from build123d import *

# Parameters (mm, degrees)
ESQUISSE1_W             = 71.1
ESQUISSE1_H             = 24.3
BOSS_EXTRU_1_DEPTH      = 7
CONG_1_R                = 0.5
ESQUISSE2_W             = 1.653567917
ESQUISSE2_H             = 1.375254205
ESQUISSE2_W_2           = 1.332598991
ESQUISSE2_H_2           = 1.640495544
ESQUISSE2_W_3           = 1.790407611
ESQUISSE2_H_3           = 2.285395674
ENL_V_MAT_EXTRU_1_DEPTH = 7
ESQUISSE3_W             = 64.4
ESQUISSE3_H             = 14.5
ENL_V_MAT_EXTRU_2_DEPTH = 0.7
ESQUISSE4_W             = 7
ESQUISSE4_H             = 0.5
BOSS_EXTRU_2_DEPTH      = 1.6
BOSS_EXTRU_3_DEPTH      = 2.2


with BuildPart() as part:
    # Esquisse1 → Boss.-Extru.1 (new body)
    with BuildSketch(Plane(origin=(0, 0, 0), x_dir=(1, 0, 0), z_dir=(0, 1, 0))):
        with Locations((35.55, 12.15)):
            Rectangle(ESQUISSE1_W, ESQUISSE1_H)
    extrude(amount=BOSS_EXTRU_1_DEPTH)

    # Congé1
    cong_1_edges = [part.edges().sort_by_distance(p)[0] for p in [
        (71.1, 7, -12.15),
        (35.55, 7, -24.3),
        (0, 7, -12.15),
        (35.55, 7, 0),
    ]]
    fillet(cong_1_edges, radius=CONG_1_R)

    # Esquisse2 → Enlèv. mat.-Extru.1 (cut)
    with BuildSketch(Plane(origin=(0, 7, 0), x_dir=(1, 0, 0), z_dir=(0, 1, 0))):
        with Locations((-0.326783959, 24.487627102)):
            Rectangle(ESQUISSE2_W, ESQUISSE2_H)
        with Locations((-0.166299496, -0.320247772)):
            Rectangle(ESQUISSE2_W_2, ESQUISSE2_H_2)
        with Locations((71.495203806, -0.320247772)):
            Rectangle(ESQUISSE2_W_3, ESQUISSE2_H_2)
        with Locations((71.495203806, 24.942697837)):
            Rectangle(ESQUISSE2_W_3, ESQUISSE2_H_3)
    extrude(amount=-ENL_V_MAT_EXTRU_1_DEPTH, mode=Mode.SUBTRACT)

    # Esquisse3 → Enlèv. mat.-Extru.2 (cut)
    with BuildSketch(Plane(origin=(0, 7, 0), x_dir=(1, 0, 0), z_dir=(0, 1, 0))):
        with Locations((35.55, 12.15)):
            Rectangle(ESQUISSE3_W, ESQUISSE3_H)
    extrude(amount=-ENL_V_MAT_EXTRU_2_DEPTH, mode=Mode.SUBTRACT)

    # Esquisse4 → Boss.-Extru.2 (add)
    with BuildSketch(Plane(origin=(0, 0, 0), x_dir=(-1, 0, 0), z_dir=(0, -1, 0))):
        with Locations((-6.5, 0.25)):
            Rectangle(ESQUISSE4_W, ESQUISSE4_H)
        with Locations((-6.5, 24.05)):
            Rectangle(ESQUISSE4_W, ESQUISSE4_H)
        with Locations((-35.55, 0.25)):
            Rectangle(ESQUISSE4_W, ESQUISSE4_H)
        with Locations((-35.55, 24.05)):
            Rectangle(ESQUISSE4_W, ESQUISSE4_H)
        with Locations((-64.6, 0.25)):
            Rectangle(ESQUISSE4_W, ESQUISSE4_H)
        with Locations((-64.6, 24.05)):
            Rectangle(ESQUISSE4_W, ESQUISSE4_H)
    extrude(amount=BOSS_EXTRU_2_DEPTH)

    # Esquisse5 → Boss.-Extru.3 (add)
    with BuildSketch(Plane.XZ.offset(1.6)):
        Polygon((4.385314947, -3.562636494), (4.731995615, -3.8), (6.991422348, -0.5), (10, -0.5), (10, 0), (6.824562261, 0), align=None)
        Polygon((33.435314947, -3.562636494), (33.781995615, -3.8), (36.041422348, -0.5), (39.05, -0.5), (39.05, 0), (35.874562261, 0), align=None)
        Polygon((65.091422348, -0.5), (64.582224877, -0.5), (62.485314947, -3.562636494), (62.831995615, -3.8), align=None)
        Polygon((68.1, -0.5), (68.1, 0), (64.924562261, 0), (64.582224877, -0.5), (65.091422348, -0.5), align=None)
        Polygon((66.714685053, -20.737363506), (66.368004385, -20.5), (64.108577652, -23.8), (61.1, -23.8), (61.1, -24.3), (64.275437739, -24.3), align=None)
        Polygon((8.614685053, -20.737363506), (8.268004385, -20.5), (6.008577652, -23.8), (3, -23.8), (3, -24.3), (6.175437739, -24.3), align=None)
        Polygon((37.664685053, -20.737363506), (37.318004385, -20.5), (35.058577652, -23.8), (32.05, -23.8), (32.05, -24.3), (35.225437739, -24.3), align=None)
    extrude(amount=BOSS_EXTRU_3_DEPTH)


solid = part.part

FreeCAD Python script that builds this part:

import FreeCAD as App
import Part
import Sketcher
from FreeCAD import Vector
Q = App.Units.Quantity


def edges_at(feature, points):
    """Names of the edges that pass closest to the given points."""
    edges = feature.Shape.Edges
    near = lambda p: min(range(len(edges)), key=lambda i: edges[i].distToShape(Part.Vertex(*p))[0])
    return sorted({f"Edge{near(p) + 1}" for p in points})


def add_polygon(sketch, points):
    """Adds a closed chain of lines whose ends are joined by coincident constraints."""
    first, n = sketch.GeometryCount, len(points)
    for a, b in zip(points, points[1:] + points[:1]):
        sketch.addGeometry(Part.LineSegment(App.Vector(*a, 0), App.Vector(*b, 0)), False)
    for i in range(n):
        sketch.addConstraint(Sketcher.Constraint("Coincident", first + i, 2, first + (i + 1) % n, 1))

doc = App.newDocument("Part")
params = doc.addObject("Spreadsheet::Sheet", "Params")
for row, (alias, value) in enumerate([
    ("sketch1_width", "71.1 mm"),
    ("sketch1_height", "24.3 mm"),
    ("pad1_length", "7 mm"),
    ("fillet_radius", "0.5 mm"),
    ("pocket1_length", "7 mm"),
    ("sketch3_width", "64.4 mm"),
    ("sketch3_height", "14.5 mm"),
    ("pocket2_length", "0.7 mm"),
    ("sketch4_width", "7 mm"),
    ("sketch4_height", "0.5 mm"),
    ("pad2_length", "1.6 mm"),
    ("sketch5_height", "0.5 mm"),
    ("pad3_length", "2.2 mm"),
], start=1):
    params.set(f"A{row}", alias)
    params.set(f"B{row}", "=" + value)
    params.setAlias(f"B{row}", alias)

body = doc.addObject("PartDesign::Body", "Body")

sketch1 = body.newObject("Sketcher::SketchObject", "Sketch")
sketch1.AttachmentSupport = (doc.getObject("XZ_Plane"), [""])
sketch1.MapMode = "FlatFace"
add_polygon(sketch1, [(0, -24), (0, 0), (71, 0), (71, -24)])
sketch1.addConstraint([
    Sketcher.Constraint("Vertical", 0),
    Sketcher.Constraint("Horizontal", 1),
    Sketcher.Constraint("Vertical", 2),
    Sketcher.Constraint("Horizontal", 3),
    Sketcher.Constraint("Coincident", 0, 2, -1, 1),
    Sketcher.Constraint("DistanceX", 1, 1, 1, 2, Q("71.1 mm")),
    Sketcher.Constraint("DistanceY", 0, 1, 0, 2, Q("24.3 mm")),
])
sketch1.setExpression("Constraints[9]", "Params.sketch1_width")
sketch1.setExpression("Constraints[10]", "Params.sketch1_height")
pad1 = body.newObject("PartDesign::Pad", "Pad")
pad1.Profile = sketch1
pad1.setExpression("Length", "Params.pad1_length")
pad1.Reversed = True
doc.recompute()

fillet = body.newObject("PartDesign::Fillet", "Fillet")
fillet.Base = (pad1, edges_at(pad1, [
    (71.1, 7, -12.15),
    (35.55, 7, -24.3),
    (0, 7, -12.15),
    (35.55, 7, 0),
]))
fillet.setExpression("Radius", "Params.fillet_radius")

sketch2 = body.newObject("Sketcher::SketchObject", "Sketch001")
sketch2.AttachmentSupport = (doc.getObject("XZ_Plane"), [""])
sketch2.MapMode = "FlatFace"
sketch2.AttachmentOffset = App.Placement(Vector(0, 0, -7), App.Rotation())
add_polygon(sketch2, [(-1.2, -25.2), (-1.2, -23.8), (0.5, -23.8), (0.5, -25.2)])
add_polygon(sketch2, [(-0.8, -0.5), (-0.8, 1.1), (0.5, 1.1), (0.5, -0.5)])
add_polygon(sketch2, [(70.6, -0.5), (70.6, 1.1), (72.4, 1.1), (72.4, -0.5)])
add_polygon(sketch2, [(70.6, -26.1), (70.6, -23.8), (72.4, -23.8), (72.4, -26.1)])
sketch2.addConstraint([
    Sketcher.Constraint("Vertical", 0),
    Sketcher.Constraint("Horizontal", 1),
    Sketcher.Constraint("Vertical", 2),
    Sketcher.Constraint("Horizontal", 3),
    Sketcher.Constraint("Vertical", 4),
    Sketcher.Constraint("Horizontal", 5),
    Sketcher.Constraint("Vertical", 6),
    Sketcher.Constraint("Horizontal", 7),
    Sketcher.Constraint("Vertical", 8),
    Sketcher.Constraint("Horizontal", 9),
    Sketcher.Constraint("Vertical", 10),
    Sketcher.Constraint("Horizontal", 11),
    Sketcher.Constraint("Vertical", 12),
    Sketcher.Constraint("Horizontal", 13),
    Sketcher.Constraint("Vertical", 14),
    Sketcher.Constraint("Horizontal", 15),
    Sketcher.Constraint("Horizontal", 5, 2, 8, 2),
    Sketcher.Constraint("Horizontal", 7, 2, 10, 2),
    Sketcher.Constraint("Horizontal", 1, 2, 12, 2),
    Sketcher.Constraint("Vertical", 2, 2, 5, 2),
    Sketcher.Constraint("Vertical", 11, 2, 12, 2),
    Sketcher.Constraint("Vertical", 10, 2, 13, 2),
    Sketcher.Constraint("DistanceY", 0, 2, -1, 1, Q("23.8 mm")),
    Sketcher.Constraint("DistanceX", -1, 1, 1, 2, Q("0.5 mm")),
    Sketcher.Constraint("DistanceY", 6, 2, -1, 1, Q("0.5 mm")),
    Sketcher.Constraint("DistanceX", -1, 1, 8, 2, Q("70.6 mm")),
    Sketcher.Constraint("DistanceX", 5, 1, 5, 2, Q("1.332599 mm")),
    Sketcher.Constraint("DistanceX", 1, 1, 1, 2, Q("1.653568 mm")),
    Sketcher.Constraint("DistanceX", 9, 1, 9, 2, Q("1.790408 mm")),
    Sketcher.Constraint("DistanceY", 0, 1, 0, 2, Q("1.375254 mm")),
    Sketcher.Constraint("DistanceY", 4, 1, 4, 2, Q("1.640496 mm")),
    Sketcher.Constraint("DistanceY", 12, 1, 12, 2, Q("2.285396 mm")),
])
pocket1 = body.newObject("PartDesign::Pocket", "Pocket")
pocket1.Profile = sketch2
pocket1.setExpression("Length", "Params.pocket1_length")
pocket1.Reversed = True

sketch3 = body.newObject("Sketcher::SketchObject", "Sketch002")
sketch3.AttachmentSupport = (doc.getObject("XZ_Plane"), [""])
sketch3.MapMode = "FlatFace"
sketch3.AttachmentOffset = App.Placement(Vector(0, 0, -7), App.Rotation())
add_polygon(sketch3, [(3, -19), (3, -5), (68, -5), (68, -19)])
sketch3.addConstraint([
    Sketcher.Constraint("Vertical", 0),
    Sketcher.Constraint("Horizontal", 1),
    Sketcher.Constraint("Vertical", 2),
    Sketcher.Constraint("Horizontal", 3),
    Sketcher.Constraint("DistanceX", 1, 1, 1, 2, Q("64.4 mm")),
    Sketcher.Constraint("DistanceY", 0, 1, 0, 2, Q("14.5 mm")),
    Sketcher.Constraint("DistanceY", 0, 2, -1, 1, Q("4.9 mm")),
    Sketcher.Constraint("DistanceX", -1, 1, 0, 2, Q("3.35 mm")),
])
sketch3.setExpression("Constraints[8]", "Params.sketch3_width")
sketch3.setExpression("Constraints[9]", "Params.sketch3_height")
pocket2 = body.newObject("PartDesign::Pocket", "Pocket001")
pocket2.Profile = sketch3
pocket2.setExpression("Length", "Params.pocket2_length")
pocket2.Reversed = True

sketch4 = body.newObject("Sketcher::SketchObject", "Sketch003")
sketch4.AttachmentSupport = (doc.getObject("XZ_Plane"), [""])
sketch4.MapMode = "FlatFace"
add_polygon(sketch4, [(10, -0.5), (10, 0), (3, 0), (3, -0.5)])
add_polygon(sketch4, [(10, -24.3), (10, -23.8), (3, -23.8), (3, -24.3)])
add_polygon(sketch4, [(39, -0.5), (39, 0), (32, 0), (32, -0.5)])
add_polygon(sketch4, [(39, -24.3), (39, -23.8), (32, -23.8), (32, -24.3)])
add_polygon(sketch4, [(68.1, -0.5), (68.1, 0), (61.1, 0), (61.1, -0.5)])
add_polygon(sketch4, [(68.1, -24.3), (68.1, -23.8), (61.1, -23.8), (61.1, -24.3)])
sketch4.addConstraint([
    Sketcher.Constraint("Vertical", 0),
    Sketcher.Constraint("Horizontal", 1),
    Sketcher.Constraint("Vertical", 2),
    Sketcher.Constraint("Horizontal", 3),
    Sketcher.Constraint("Vertical", 4),
    Sketcher.Constraint("Horizontal", 5),
    Sketcher.Constraint("Vertical", 6),
    Sketcher.Constraint("Horizontal", 7),
    Sketcher.Constraint("Vertical", 8),
    Sketcher.Constraint("Horizontal", 9),
    Sketcher.Constraint("Vertical", 10),
    Sketcher.Constraint("Horizontal", 11),
    Sketcher.Constraint("Vertical", 12),
    Sketcher.Constraint("Horizontal", 13),
    Sketcher.Constraint("Vertical", 14),
    Sketcher.Constraint("Horizontal", 15),
    Sketcher.Constraint("Vertical", 16),
    Sketcher.Constraint("Horizontal", 17),
    Sketcher.Constraint("Vertical", 18),
    Sketcher.Constraint("Horizontal", 19),
    Sketcher.Constraint("Vertical", 20),
    Sketcher.Constraint("Horizontal", 21),
    Sketcher.Constraint("Vertical", 22),
    Sketcher.Constraint("Horizontal", 23),
    Sketcher.Constraint("PointOnObject", 0, 2, -1),
    Sketcher.Constraint("PointOnObject", 8, 2, -1),
    Sketcher.Constraint("PointOnObject", 16, 2, -1),
    Sketcher.Constraint("Horizontal", 3, 2, 10, 2),
    Sketcher.Constraint("Horizontal", 5, 2, 12, 2),
    Sketcher.Constraint("Horizontal", 7, 2, 14, 2),
    Sketcher.Constraint("Horizontal", 11, 2, 18, 2),
    Sketcher.Constraint("Horizontal", 13, 2, 20, 2),
    Sketcher.Constraint("Horizontal", 15, 2, 22, 2),
    Sketcher.Constraint("Vertical", 3, 2, 4, 2),
    Sketcher.Constraint("Vertical", 2, 2, 5, 2),
    Sketcher.Constraint("Vertical", 11, 2, 12, 2),
    Sketcher.Constraint("Vertical", 10, 2, 13, 2),
    Sketcher.Constraint("Vertical", 19, 2, 20, 2),
    Sketcher.Constraint("Vertical", 18, 2, 21, 2),
    Sketcher.Constraint("Equal", 7, 9),
    Sketcher.Constraint("Equal", 15, 17),
    Sketcher.Constraint("Equal", 2, 4),
    Sketcher.Constraint("DistanceX", 1, 2, 1, 1, Q("7 mm")),
    Sketcher.Constraint("DistanceY", 0, 1, 0, 2, Q("0.5 mm")),
    Sketcher.Constraint("DistanceX", -1, 1, 0, 2, Q("10 mm")),
    Sketcher.Constraint("DistanceY", 4, 2, -1, 1, Q("23.8 mm")),
    Sketcher.Constraint("DistanceX", -1, 1, 16, 2, Q("68.1 mm")),
    Sketcher.Constraint("DistanceX", -1, 1, 8, 2, Q("39.05 mm")),
])
sketch4.setExpression("Constraints[66]", "Params.sketch4_width")
sketch4.setExpression("Constraints[67]", "Params.sketch4_height")
pad2 = body.newObject("PartDesign::Pad", "Pad001")
pad2.Profile = sketch4
pad2.setExpression("Length", "Params.pad2_length")

sketch5 = body.newObject("Sketcher::SketchObject", "Sketch004")
sketch5.AttachmentSupport = (doc.getObject("XZ_Plane"), [""])
sketch5.MapMode = "FlatFace"
sketch5.AttachmentOffset = App.Placement(Vector(0, 0, 1.6), App.Rotation())
add_polygon(sketch5, [(4.39, -3.56), (4.73, -3.8), (6.99, -0.5), (10, -0.5), (10, 0), (6.82, 0)])
add_polygon(sketch5, [(33.44, -3.56), (33.78, -3.8), (36.04, -0.5), (39.05, -0.5), (39.05, 0), (35.87, 0)])
add_polygon(sketch5, [(64.58, -0.5), (62.49, -3.56), (62.83, -3.8), (65.09, -0.5), (68.1, -0.5), (68.1, 0), (64.92, 0)])
add_polygon(sketch5, [(66.71, -20.74), (66.37, -20.5), (64.11, -23.8), (61.1, -23.8), (61.1, -24.3), (64.28, -24.3)])
add_polygon(sketch5, [(8.61, -20.74), (8.27, -20.5), (6.01, -23.8), (3, -23.8), (3, -24.3), (6.18, -24.3)])
add_polygon(sketch5, [(37.66, -20.74), (37.32, -20.5), (35.06, -23.8), (32.05, -23.8), (32.05, -24.3), (35.23, -24.3)])
sketch5.addConstraint([
    Sketcher.Constraint("Horizontal", 2),
    Sketcher.Constraint("Vertical", 3),
    Sketcher.Constraint("Horizontal", 4),
    Sketcher.Constraint("Horizontal", 8),
    Sketcher.Constraint("Vertical", 9),
    Sketcher.Constraint("Horizontal", 10),
    Sketcher.Constraint("Horizontal", 15),
    Sketcher.Constraint("Vertical", 16),
    Sketcher.Constraint("Horizontal", 17),
    Sketcher.Constraint("Horizontal", 21),
    Sketcher.Constraint("Vertical", 22),
    Sketcher.Constraint("Horizontal", 23),
    Sketcher.Constraint("Horizontal", 27),
    Sketcher.Constraint("Vertical", 28),
    Sketcher.Constraint("Horizontal", 29),
    Sketcher.Constraint("Horizontal", 33),
    Sketcher.Constraint("Vertical", 34),
    Sketcher.Constraint("Horizontal", 35),
    Sketcher.Constraint("PointOnObject", 3, 2, -1),
    Sketcher.Constraint("PointOnObject", 9, 2, -1),
    Sketcher.Constraint("PointOnObject", 16, 2, -1),
    Sketcher.Constraint("Perpendicular", 0, 1),
    Sketcher.Constraint("Parallel", 1, 5),
    Sketcher.Constraint("Perpendicular", 5, 6),
    Sketcher.Constraint("Perpendicular", 6, 7),
    Sketcher.Constraint("Parallel", 7, 11),
    Sketcher.Constraint("Parallel", 11, 12),
    Sketcher.Constraint("Perpendicular", 12, 13),
    Sketcher.Constraint("Perpendicular", 13, 14),
    Sketcher.Constraint("Parallel", 14, 18),
    Sketcher.Constraint("Perpendicular", 18, 19),
    Sketcher.Constraint("Perpendicular", 19, 20),
    Sketcher.Constraint("Parallel", 20, 24),
    Sketcher.Constraint("Perpendicular", 24, 25),
    Sketcher.Constraint("Perpendicular", 25, 26),
    Sketcher.Constraint("Parallel", 26, 30),
    Sketcher.Constraint("Perpendicular", 30, 31),
    Sketcher.Constraint("Perpendicular", 31, 32),
    Sketcher.Constraint("Parallel", 32, 36),
    Sketcher.Constraint("Horizontal", 0, 2, 6, 2),
    Sketcher.Constraint("Horizontal", 2, 2, 7, 2),
    Sketcher.Constraint("Horizontal", 5, 2, 11, 2),
    Sketcher.Constraint("Horizontal", 11, 2, 12, 2),
    Sketcher.Constraint("Horizontal", 6, 2, 13, 2),
    Sketcher.Constraint("Horizontal", 8, 2, 14, 2),
    Sketcher.Constraint("Horizontal", 15, 2, 18, 2),
    Sketcher.Constraint("Horizontal", 19, 2, 25, 2),
    Sketcher.Constraint("Horizontal", 21, 2, 26, 2),
    Sketcher.Constraint("Horizontal", 23, 2, 28, 2),
    Sketcher.Constraint("Horizontal", 24, 2, 30, 2),
    Sketcher.Constraint("Horizontal", 25, 2, 31, 2),
    Sketcher.Constraint("Horizontal", 27, 2, 32, 2),
    Sketcher.Constraint("Horizontal", 29, 2, 34, 2),
    Sketcher.Constraint("Horizontal", 30, 2, 36, 2),
    Sketcher.Constraint("Equal", 2, 8),
    Sketcher.Constraint("Equal", 8, 15),
    Sketcher.Constraint("Equal", 15, 21),
    Sketcher.Constraint("Equal", 17, 23),
    Sketcher.Constraint("Equal", 21, 27),
    Sketcher.Constraint("Equal", 27, 33),
    Sketcher.Constraint("Equal", 16, 22),
    Sketcher.Constraint("Equal", 14, 20),
    Sketcher.Constraint("DistanceY", 3, 1, 3, 2, Q("0.5 mm")),
    Sketcher.Constraint("DistanceX", -1, 1, 2, 2, Q("10 mm")),
    Sketcher.Constraint("DistanceX", -1, 1, 27, 2, Q("3 mm")),
    Sketcher.Constraint("DistanceY", 19, 2, 14, 2, Q("20 mm")),
    Sketcher.Constraint("DistanceY", 0, 2, -1, 1, Q("3.8 mm")),
    Sketcher.Constraint("DistanceX", -1, 1, 15, 2, Q("68.1 mm")),
    Sketcher.Constraint("DistanceX", -1, 1, 21, 2, Q("61.1 mm")),
    Sketcher.Constraint("DistanceX", -1, 1, 8, 2, Q("39.05 mm")),
    Sketcher.Constraint("DistanceX", -1, 1, 33, 2, Q("32.05 mm")),
    Sketcher.Constraint("DistanceX", 2, 1, 2, 2, Q("3.008578 mm")),
    Sketcher.Constraint("DistanceX", 4, 2, 4, 1, Q("3.175438 mm")),
    Sketcher.Constraint("DistanceX", 12, 2, 18, 2, Q("2.09691 mm")),
])
sketch5.setExpression("Constraints[99]", "Params.sketch5_height")
pad3 = body.newObject("PartDesign::Pad", "Pad002")
pad3.Profile = sketch5
pad3.setExpression("Length", "Params.pad3_length")

doc.recompute()
